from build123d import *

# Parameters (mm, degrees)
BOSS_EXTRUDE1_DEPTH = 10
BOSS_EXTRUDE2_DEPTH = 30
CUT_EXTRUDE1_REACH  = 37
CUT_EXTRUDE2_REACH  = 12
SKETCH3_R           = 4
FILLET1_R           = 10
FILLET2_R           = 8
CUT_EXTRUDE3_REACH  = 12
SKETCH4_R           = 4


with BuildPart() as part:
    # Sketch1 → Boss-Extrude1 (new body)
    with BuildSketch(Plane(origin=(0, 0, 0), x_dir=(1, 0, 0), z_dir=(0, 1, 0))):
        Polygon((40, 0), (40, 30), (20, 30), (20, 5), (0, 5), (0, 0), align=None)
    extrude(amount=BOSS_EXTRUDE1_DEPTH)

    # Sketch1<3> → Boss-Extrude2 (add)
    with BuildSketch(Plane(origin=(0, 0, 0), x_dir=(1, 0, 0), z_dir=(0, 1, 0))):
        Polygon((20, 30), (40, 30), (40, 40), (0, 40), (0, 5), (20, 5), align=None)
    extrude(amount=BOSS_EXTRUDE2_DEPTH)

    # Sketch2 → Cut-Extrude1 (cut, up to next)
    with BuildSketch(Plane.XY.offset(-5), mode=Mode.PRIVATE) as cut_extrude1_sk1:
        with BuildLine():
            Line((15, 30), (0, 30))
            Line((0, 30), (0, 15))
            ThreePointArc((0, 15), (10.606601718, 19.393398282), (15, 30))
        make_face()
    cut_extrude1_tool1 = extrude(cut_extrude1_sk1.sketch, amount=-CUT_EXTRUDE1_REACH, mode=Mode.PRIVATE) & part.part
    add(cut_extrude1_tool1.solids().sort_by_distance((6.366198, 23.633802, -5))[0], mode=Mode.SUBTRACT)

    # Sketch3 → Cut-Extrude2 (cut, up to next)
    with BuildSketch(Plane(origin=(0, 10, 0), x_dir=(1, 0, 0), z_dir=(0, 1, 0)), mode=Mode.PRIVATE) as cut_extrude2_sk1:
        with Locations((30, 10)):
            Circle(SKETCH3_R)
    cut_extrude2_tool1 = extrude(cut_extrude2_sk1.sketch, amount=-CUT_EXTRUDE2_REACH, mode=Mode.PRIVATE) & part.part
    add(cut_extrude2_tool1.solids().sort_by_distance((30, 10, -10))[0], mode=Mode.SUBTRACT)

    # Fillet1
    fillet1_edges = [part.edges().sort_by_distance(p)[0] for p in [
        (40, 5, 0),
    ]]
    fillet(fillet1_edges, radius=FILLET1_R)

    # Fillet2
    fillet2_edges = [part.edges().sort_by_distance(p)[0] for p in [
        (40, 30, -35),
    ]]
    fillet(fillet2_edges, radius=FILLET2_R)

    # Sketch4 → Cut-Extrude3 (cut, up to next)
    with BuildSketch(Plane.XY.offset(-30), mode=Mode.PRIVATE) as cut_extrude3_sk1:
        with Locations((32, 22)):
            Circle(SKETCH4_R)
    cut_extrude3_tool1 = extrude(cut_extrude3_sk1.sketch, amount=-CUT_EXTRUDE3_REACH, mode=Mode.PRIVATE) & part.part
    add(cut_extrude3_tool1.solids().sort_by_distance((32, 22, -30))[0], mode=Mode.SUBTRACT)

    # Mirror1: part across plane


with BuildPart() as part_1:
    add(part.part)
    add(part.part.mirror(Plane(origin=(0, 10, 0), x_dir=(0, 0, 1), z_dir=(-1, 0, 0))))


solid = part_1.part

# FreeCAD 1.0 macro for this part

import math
import FreeCAD as App
import Part
import Sketcher
from FreeCAD import Vector


def edges_at(feature, points):
    """Names of the edges that pass closest to the given points."""
    edges = feature.Shape.Edges
    near = lambda p: min(range(len(edges)), key=lambda i: edges[i].distToShape(Part.Vertex(*p))[0])
    return sorted({f"Edge{near(p) + 1}" for p in points})

doc = App.newDocument("Part")
params = doc.addObject("Spreadsheet::Sheet", "Params")
for row, (alias, value) in enumerate([
    ("sketch1_width", "20 mm"),
    ("sketch1_height", "30 mm"),
    ("sketch1_height2", "25 mm"),
    ("pad1_length", "10 mm"),
    ("sketch2_width", "20 mm"),
    ("sketch2_height", "10 mm"),
    ("sketch2_height2", "35 mm"),
    ("pad2_length", "30 mm"),
    ("sketch3_radius", "15 mm"),
    ("sketch4_diameter", "8 mm"),
    ("fillet_radius", "10 mm"),
    ("fillet2_radius", "8 mm"),
    ("sketch5_diameter", "8 mm"),
], start=1):
    params.set(f"A{row}", alias)
    params.set(f"B{row}", "=" + value)
    params.setAlias(f"B{row}", alias)

body = doc.addObject("PartDesign::Body", "Body")

sketch1 = body.newObject("Sketcher::SketchObject", "Sketch")
sketch1.AttachmentSupport = (doc.getObject("XZ_Plane"), [""])
sketch1.MapMode = "FlatFace"
sketch1.addGeometry(Part.LineSegment(Vector(40, 0, 0), Vector(40, -30, 0)), False)
sketch1.addGeometry(Part.LineSegment(Vector(40, -30, 0), Vector(20, -30, 0)), False)
sketch1.addGeometry(Part.LineSegment(Vector(20, -30, 0), Vector(20, -5, 0)), False)
sketch1.addGeometry(Part.LineSegment(Vector(20, -5, 0), Vector(0, -5, 0)), False)
sketch1.addGeometry(Part.LineSegment(Vector(0, -5, 0), Vector(0, 0, 0)), False)
sketch1.addGeometry(Part.LineSegment(Vector(0, 0, 0), Vector(40, 0, 0)), False)
sketch1.addConstraint(Sketcher.Constraint("Coincident", 0, 2, 1, 1))
sketch1.addConstraint(Sketcher.Constraint("Coincident", 1, 2, 2, 1))
sketch1.addConstraint(Sketcher.Constraint("Coincident", 2, 2, 3, 1))
sketch1.addConstraint(Sketcher.Constraint("Coincident", 3, 2, 4, 1))
sketch1.addConstraint(Sketcher.Constraint("Coincident", 4, 2, 5, 1))
sketch1.addConstraint(Sketcher.Constraint("Coincident", 5, 2, 0, 1))
sketch1.addConstraint(Sketcher.Constraint("Vertical", 0))
sketch1.addConstraint(Sketcher.Constraint("Horizontal", 1))
sketch1.addConstraint(Sketcher.Constraint("Vertical", 2))
sketch1.addConstraint(Sketcher.Constraint("Horizontal", 3))
sketch1.addConstraint(Sketcher.Constraint("Vertical", 4))
sketch1.addConstraint(Sketcher.Constraint("Horizontal", 5))
sketch1.addConstraint(Sketcher.Constraint("Coincident", 4, 2, -1, 1))
sketch1.addConstraint(Sketcher.Constraint("Equal", 1, 3))
sketch1.addConstraint(Sketcher.Constraint("DistanceX", 1, 2, 1, 1, 20.0))
sketch1.addConstraint(Sketcher.Constraint("DistanceY", 0, 2, 0, 1, 30.0))
sketch1.addConstraint(Sketcher.Constraint("DistanceY", 2, 1, 2, 2, 25.0))
sketch1.setExpression("Constraints[14]", "Params.sketch1_width")
sketch1.setExpression("Constraints[15]", "Params.sketch1_height")
sketch1.setExpression("Constraints[16]", "Params.sketch1_height2")
pad1 = body.newObject("PartDesign::Pad", "Pad")
pad1.Profile = sketch1
pad1.setExpression("Length", "Params.pad1_length")
pad1.Reversed = True

sketch2 = body.newObject("Sketcher::SketchObject", "Sketch001")
sketch2.AttachmentSupport = (doc.getObject("XZ_Plane"), [""])
sketch2.MapMode = "FlatFace"
sketch2.addGeometry(Part.LineSegment(Vector(20, -30, 0), Vector(40, -30, 0)), False)
sketch2.addGeometry(Part.LineSegment(Vector(40, -30, 0), Vector(40, -40, 0)), False)
sketch2.addGeometry(Part.LineSegment(Vector(40, -40, 0), Vector(0, -40, 0)), False)
sketch2.addGeometry(Part.LineSegment(Vector(0, -40, 0), Vector(0, -5, 0)), False)
sketch2.addGeometry(Part.LineSegment(Vector(0, -5, 0), Vector(20, -5, 0)), False)
sketch2.addGeometry(Part.LineSegment(Vector(20, -5, 0), Vector(20, -30, 0)), False)
sketch2.addConstraint(Sketcher.Constraint("Coincident", 0, 2, 1, 1))
sketch2.addConstraint(Sketcher.Constraint("Coincident", 1, 2, 2, 1))
sketch2.addConstraint(Sketcher.Constraint("Coincident", 2, 2, 3, 1))
sketch2.addConstraint(Sketcher.Constraint("Coincident", 3, 2, 4, 1))
sketch2.addConstraint(Sketcher.Constraint("Coincident", 4, 2, 5, 1))
sketch2.addConstraint(Sketcher.Constraint("Coincident", 5, 2, 0, 1))
sketch2.addConstraint(Sketcher.Constraint("Horizontal", 0))
sketch2.addConstraint(Sketcher.Constraint("Vertical", 1))
sketch2.addConstraint(Sketcher.Constraint("Horizontal", 2))
sketch2.addConstraint(Sketcher.Constraint("Vertical", 3))
sketch2.addConstraint(Sketcher.Constraint("Horizontal", 4))
sketch2.addConstraint(Sketcher.Constraint("Vertical", 5))
sketch2.addConstraint(Sketcher.Constraint("PointOnObject", 2, 2, -2))
sketch2.addConstraint(Sketcher.Constraint("Equal", 0, 4))
sketch2.addConstraint(Sketcher.Constraint("DistanceX", 0, 1, 0, 2, 20.0))
sketch2.addConstraint(Sketcher.Constraint("DistanceY", 1, 2, 1, 1, 10.0))
sketch2.addConstraint(Sketcher.Constraint("DistanceY", 3, 1, 3, 2, 35.0))
sketch2.addConstraint(Sketcher.Constraint("DistanceY", 0, 2, -1, 1, 30.0))
sketch2.setExpression("Constraints[14]", "Params.sketch2_width")
sketch2.setExpression("Constraints[15]", "Params.sketch2_height")
sketch2.setExpression("Constraints[16]", "Params.sketch2_height2")
pad2 = body.newObject("PartDesign::Pad", "Pad001")
pad2.Profile = sketch2
pad2.setExpression("Length", "Params.pad2_length")
pad2.Reversed = True

sketch3 = body.newObject("Sketcher::SketchObject", "Sketch002")
sketch3.AttachmentSupport = (doc.getObject("XY_Plane"), [""])
sketch3.MapMode = "FlatFace"
sketch3.AttachmentOffset = App.Placement(Vector(0, 0, -5), App.Rotation())
sketch3.addGeometry(Part.LineSegment(Vector(15, 30, 0), Vector(0, 30, 0)), False)
sketch3.addGeometry(Part.LineSegment(Vector(0, 30, 0), Vector(0, 15, 0)), False)
sketch3.addGeometry(Part.ArcOfCircle(Part.Circle(Vector(0, 30, 0), Vector(0, 0, 1), 15), math.radians(-90), math.radians(0)), False)
sketch3.addConstraint(Sketcher.Constraint("Coincident", 0, 2, 1, 1))
sketch3.addConstraint(Sketcher.Constraint("Coincident", 1, 2, 2, 1))
sketch3.addConstraint(Sketcher.Constraint("Coincident", 2, 2, 0, 1))
sketch3.addConstraint(Sketcher.Constraint("Horizontal", 0))
sketch3.addConstraint(Sketcher.Constraint("Vertical", 1))
sketch3.addConstraint(Sketcher.Constraint("Coincident", 0, 2, 2, 3))
sketch3.addConstraint(Sketcher.Constraint("PointOnObject", 2, 3, -2))
sketch3.addConstraint(Sketcher.Constraint("Radius", 2, 15.0))
sketch3.addConstraint(Sketcher.Constraint("DistanceY", -1, 1, 2, 3, 30.0))
sketch3.setExpression("Constraints[7]", "Params.sketch3_radius")
pocket1 = body.newObject("PartDesign::Pocket", "Pocket")
pocket1.Profile = sketch3
pocket1.Type = "UpToFirst"

sketch4 = body.newObject("Sketcher::SketchObject", "Sketch003")
sketch4.AttachmentSupport = (doc.getObject("XZ_Plane"), [""])
sketch4.MapMode = "FlatFace"
sketch4.AttachmentOffset = App.Placement(Vector(0, 0, -10), App.Rotation())
sketch4.addGeometry(Part.Circle(Vector(30, -10, 0), Vector(0, 0, 1), 4), False)
sketch4.addConstraint(Sketcher.Constraint("Diameter", 0, 8.0))
sketch4.addConstraint(Sketcher.Constraint("DistanceX", -1, 1, 0, 3, 30.0))
sketch4.addConstraint(Sketcher.Constraint("DistanceY", 0, 3, -1, 1, 10.0))
sketch4.setExpression("Constraints[0]", "Params.sketch4_diameter")
pocket2 = body.newObject("PartDesign::Pocket", "Pocket001")
pocket2.Profile = sketch4
pocket2.Type = "UpToFirst"
pocket2.Reversed = True
doc.recompute()

fillet = body.newObject("PartDesign::Fillet", "Fillet")
fillet.Base = (pocket2, edges_at(pocket2, [(40, 5, 0)]))
fillet.setExpression("Radius", "Params.fillet_radius")
doc.recompute()

fillet2 = body.newObject("PartDesign::Fillet", "Fillet001")
fillet2.Base = (fillet, edges_at(fillet, [(40, 30, -35)]))
fillet2.setExpression("Radius", "Params.fillet2_radius")

sketch5 = body.newObject("Sketcher::SketchObject", "Sketch004")
sketch5.AttachmentSupport = (doc.getObject("XY_Plane"), [""])
sketch5.MapMode = "FlatFace"
sketch5.AttachmentOffset = App.Placement(Vector(0, 0, -30), App.Rotation())
sketch5.addGeometry(Part.Circle(Vector(32, 22, 0), Vector(0, 0, 1), 4), False)
sketch5.addConstraint(Sketcher.Constraint("Diameter", 0, 8.0))
sketch5.addConstraint(Sketcher.Constraint("DistanceX", -1, 1, 0, 3, 32.0))
sketch5.addConstraint(Sketcher.Constraint("DistanceY", -1, 1, 0, 3, 22.0))
sketch5.setExpression("Constraints[0]", "Params.sketch5_diameter")
pocket3 = body.newObject("PartDesign::Pocket", "Pocket002")
pocket3.Profile = sketch5
pocket3.Type = "UpToFirst"
body2 = doc.addObject("PartDesign::Body", "Body001")
doc.recompute()

body2.BaseFeature = body
doc.recompute()

mirroring = doc.addObject("Part::Mirroring", "Mirroring")
mirroring.Source = body
mirroring.Base = Vector(0, 10, 0)
mirroring.Normal = Vector(-1, 0, 0)
body3 = doc.addObject("PartDesign::Body", "Body002")
body3.BaseFeature = mirroring
boolean = body2.newObject("PartDesign::Boolean", "Boolean")
boolean.Type = "Fuse"
boolean.addObjects([body3])
doc.recompute()
mirroring.Visibility = False

doc.recompute()
